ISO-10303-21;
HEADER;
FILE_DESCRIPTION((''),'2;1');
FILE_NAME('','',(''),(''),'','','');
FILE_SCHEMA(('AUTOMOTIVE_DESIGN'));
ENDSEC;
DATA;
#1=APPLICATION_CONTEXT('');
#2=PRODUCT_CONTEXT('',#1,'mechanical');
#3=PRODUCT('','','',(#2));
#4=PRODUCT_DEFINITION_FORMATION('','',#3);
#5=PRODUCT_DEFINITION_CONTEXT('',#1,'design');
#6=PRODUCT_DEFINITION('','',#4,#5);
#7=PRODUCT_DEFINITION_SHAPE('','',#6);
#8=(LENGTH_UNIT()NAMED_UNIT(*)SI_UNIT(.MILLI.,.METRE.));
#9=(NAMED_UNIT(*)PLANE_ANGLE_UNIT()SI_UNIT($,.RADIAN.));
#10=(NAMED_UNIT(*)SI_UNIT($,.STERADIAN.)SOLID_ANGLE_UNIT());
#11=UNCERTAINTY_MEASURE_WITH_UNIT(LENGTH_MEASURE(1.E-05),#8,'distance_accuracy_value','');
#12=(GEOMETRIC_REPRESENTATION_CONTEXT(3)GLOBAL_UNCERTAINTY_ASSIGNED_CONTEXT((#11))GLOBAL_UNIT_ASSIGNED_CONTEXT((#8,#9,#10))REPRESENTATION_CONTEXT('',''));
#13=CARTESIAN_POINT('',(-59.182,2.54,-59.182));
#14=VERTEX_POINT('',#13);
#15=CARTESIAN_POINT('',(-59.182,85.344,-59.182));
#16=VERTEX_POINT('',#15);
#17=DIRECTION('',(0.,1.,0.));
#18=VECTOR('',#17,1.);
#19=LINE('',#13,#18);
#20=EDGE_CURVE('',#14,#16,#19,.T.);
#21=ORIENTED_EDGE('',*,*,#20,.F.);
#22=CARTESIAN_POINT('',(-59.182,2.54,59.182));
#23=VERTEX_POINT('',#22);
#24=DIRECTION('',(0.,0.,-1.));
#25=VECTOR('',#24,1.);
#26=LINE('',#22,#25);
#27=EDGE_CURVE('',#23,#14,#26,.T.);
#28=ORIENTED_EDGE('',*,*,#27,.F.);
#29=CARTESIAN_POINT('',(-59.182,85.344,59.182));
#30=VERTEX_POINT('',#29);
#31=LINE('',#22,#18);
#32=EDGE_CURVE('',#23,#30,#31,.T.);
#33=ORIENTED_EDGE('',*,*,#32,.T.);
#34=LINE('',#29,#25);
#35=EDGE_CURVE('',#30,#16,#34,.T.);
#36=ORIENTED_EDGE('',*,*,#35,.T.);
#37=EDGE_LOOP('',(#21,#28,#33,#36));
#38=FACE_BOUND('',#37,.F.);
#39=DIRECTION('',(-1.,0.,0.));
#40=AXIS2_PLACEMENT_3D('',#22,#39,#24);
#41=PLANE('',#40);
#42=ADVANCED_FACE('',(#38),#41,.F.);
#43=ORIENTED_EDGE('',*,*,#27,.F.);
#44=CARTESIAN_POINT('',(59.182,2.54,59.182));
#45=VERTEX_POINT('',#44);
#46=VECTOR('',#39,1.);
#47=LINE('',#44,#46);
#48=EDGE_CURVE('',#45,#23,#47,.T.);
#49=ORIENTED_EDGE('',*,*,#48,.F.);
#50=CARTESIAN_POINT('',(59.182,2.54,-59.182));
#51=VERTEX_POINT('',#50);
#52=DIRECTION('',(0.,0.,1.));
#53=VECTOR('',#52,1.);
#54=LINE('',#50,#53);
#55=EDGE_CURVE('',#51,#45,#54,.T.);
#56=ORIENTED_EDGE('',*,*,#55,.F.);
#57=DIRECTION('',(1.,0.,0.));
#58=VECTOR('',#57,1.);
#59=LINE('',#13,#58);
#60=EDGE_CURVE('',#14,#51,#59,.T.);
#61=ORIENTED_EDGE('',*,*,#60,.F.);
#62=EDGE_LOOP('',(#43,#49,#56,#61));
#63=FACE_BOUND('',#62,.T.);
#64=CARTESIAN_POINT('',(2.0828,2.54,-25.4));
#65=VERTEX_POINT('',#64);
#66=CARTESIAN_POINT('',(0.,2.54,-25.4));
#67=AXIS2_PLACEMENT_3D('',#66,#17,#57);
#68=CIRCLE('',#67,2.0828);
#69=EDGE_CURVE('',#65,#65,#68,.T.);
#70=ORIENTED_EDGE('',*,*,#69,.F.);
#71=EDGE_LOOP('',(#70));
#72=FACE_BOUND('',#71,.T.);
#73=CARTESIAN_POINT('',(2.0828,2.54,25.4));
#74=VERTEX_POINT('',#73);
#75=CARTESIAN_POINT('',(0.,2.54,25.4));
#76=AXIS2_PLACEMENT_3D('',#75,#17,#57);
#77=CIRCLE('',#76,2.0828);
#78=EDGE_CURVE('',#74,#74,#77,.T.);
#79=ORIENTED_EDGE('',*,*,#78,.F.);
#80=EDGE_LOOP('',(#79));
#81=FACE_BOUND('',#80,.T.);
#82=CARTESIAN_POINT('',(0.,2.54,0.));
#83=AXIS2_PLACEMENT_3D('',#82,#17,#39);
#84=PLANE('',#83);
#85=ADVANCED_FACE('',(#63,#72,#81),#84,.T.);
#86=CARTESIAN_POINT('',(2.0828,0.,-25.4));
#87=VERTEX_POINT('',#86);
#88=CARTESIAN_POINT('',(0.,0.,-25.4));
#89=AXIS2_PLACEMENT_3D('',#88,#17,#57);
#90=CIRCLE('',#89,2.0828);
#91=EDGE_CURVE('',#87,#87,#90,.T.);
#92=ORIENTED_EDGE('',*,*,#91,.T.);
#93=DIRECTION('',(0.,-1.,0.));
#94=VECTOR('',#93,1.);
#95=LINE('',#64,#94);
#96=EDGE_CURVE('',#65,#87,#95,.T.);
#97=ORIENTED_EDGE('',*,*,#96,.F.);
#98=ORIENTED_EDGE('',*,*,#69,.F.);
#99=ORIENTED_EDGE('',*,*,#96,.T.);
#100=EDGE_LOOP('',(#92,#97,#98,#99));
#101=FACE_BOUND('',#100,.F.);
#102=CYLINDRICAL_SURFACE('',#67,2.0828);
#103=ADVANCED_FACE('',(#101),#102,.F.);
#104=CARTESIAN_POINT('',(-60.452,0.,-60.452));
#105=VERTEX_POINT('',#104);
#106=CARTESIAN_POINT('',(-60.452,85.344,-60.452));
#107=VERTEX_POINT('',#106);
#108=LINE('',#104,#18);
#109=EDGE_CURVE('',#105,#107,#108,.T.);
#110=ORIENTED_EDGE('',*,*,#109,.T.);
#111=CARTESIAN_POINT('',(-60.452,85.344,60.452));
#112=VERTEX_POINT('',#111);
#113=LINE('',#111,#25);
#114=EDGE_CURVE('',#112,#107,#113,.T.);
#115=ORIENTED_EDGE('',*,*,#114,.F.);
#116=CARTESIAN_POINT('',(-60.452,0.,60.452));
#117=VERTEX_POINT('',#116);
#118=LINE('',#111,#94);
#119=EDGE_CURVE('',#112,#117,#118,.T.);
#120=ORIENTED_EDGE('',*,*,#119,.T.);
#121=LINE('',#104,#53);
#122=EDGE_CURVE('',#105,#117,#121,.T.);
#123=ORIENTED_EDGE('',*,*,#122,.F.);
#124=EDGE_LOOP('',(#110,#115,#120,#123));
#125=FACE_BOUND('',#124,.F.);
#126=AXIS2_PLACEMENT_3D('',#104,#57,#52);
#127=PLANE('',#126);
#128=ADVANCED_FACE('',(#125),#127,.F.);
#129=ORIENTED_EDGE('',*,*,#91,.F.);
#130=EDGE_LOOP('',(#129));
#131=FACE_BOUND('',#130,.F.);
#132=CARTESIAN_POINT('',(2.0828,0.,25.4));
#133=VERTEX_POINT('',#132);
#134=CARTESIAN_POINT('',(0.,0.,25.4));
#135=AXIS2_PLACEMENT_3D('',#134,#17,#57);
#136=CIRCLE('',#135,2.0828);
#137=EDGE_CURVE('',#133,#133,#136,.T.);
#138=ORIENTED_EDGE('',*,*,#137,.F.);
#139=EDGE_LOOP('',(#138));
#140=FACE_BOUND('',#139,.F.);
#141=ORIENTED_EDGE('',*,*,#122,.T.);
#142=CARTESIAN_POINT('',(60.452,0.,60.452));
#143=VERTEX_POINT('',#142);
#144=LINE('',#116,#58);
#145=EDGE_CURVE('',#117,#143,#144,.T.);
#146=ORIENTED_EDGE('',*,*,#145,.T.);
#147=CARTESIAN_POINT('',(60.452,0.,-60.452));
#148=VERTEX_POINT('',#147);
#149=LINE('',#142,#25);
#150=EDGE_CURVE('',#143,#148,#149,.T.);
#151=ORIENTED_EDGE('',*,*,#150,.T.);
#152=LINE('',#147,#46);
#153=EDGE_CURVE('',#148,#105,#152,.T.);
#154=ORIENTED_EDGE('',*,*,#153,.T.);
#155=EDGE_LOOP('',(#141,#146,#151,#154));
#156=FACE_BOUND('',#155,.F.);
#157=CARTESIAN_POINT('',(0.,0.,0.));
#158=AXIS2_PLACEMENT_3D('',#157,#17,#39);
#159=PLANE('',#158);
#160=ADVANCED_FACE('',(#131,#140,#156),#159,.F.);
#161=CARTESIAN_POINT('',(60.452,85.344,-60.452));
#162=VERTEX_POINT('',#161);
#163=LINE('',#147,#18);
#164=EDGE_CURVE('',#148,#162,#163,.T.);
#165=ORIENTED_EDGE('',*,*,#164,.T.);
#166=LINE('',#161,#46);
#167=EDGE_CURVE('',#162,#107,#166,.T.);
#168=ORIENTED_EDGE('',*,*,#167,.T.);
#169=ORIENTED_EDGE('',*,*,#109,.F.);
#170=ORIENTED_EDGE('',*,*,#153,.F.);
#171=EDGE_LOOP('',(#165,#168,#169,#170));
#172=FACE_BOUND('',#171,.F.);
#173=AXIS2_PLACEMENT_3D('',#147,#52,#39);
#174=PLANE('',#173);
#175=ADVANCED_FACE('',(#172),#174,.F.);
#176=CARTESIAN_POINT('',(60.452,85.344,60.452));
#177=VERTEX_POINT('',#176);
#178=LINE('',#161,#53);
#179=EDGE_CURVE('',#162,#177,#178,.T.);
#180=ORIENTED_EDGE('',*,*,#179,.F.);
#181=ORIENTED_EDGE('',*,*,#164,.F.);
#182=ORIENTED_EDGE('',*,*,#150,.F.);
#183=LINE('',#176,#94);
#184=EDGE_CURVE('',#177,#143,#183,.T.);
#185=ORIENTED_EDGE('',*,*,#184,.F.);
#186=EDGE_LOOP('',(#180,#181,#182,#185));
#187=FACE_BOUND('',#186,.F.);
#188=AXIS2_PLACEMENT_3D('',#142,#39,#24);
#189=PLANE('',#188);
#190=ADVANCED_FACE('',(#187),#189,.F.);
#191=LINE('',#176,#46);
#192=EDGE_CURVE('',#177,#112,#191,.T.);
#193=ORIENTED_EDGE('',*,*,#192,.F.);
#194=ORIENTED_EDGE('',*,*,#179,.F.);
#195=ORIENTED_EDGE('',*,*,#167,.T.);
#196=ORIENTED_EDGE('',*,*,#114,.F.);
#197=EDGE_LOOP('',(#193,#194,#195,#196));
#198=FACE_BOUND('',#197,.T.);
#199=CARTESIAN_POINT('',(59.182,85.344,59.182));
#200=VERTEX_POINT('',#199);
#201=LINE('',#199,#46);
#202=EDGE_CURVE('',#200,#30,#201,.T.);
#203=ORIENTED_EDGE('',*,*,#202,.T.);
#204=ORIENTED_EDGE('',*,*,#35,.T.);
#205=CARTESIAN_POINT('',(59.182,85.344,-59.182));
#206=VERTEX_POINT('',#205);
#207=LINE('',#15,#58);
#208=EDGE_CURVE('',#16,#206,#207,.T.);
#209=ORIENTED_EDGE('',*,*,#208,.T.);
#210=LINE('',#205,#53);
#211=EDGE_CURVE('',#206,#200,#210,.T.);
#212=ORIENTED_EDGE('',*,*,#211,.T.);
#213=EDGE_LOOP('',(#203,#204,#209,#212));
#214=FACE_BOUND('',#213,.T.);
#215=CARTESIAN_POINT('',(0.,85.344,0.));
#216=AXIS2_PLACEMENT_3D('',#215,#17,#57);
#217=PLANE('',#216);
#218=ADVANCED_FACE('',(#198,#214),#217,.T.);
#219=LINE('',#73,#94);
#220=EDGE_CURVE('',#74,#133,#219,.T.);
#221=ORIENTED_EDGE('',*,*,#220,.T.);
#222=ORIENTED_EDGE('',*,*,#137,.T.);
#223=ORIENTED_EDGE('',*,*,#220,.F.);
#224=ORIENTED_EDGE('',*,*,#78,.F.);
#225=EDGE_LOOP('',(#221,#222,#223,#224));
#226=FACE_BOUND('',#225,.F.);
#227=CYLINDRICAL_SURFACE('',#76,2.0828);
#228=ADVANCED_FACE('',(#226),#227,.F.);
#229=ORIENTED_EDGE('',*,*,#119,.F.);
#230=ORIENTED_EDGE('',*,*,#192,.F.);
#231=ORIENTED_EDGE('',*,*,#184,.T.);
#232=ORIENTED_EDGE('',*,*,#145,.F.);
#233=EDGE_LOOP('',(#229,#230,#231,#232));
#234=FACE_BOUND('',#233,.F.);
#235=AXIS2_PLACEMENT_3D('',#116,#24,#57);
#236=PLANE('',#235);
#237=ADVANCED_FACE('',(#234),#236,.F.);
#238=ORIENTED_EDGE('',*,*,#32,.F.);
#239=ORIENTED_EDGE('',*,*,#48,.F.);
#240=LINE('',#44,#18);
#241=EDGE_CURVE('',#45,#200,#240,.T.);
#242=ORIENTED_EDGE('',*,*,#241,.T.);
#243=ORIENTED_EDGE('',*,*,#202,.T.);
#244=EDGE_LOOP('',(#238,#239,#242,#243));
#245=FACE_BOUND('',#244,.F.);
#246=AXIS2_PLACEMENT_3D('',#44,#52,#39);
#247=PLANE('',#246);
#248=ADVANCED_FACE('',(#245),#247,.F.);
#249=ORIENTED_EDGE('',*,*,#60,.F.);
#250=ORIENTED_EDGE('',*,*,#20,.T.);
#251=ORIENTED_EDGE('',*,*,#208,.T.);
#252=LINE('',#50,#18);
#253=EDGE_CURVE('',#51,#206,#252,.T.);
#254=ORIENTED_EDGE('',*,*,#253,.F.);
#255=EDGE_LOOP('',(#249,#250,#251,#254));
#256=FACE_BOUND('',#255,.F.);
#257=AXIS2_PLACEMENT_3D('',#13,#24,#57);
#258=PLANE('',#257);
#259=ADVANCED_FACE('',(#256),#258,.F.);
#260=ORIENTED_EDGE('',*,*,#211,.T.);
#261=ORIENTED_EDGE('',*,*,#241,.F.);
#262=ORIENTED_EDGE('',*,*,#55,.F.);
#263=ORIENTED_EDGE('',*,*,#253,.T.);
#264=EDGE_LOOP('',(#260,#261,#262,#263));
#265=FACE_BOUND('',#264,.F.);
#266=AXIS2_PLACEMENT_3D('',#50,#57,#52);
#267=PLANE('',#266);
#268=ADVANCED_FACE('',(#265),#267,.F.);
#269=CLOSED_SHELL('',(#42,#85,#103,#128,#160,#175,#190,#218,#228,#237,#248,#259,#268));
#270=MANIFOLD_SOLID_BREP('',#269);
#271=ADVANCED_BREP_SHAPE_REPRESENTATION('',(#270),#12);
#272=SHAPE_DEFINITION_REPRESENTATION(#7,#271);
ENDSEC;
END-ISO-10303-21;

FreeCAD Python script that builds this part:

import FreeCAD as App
import Part
import Sketcher
from FreeCAD import Vector
Q = App.Units.Quantity

doc = App.newDocument("Part")
params = doc.addObject("Spreadsheet::Sheet", "Params")
for row, (alias, value) in enumerate([
    ("sketch1_width", "4.76 in"),
    ("pad1_length", "0.1 in"),
    ("sketch2_width", "4.66 in"),
    ("sketch2_width2", "4.76 in"),
    ("pad2_length", "3.26 in"),
    ("sketch3_diameter", "0.164 in"),
], start=1):
    params.set(f"A{row}", alias)
    params.set(f"B{row}", "=" + value)
    params.setAlias(f"B{row}", alias)

body = doc.addObject("PartDesign::Body", "Body")

# Sketch on XZ plane
sketch1 = body.newObject("Sketcher::SketchObject", "Sketch")
sketch1.AttachmentSupport = (doc.getObject("XZ_Plane"), [""])
sketch1.MapMode = "FlatFace"
sketch1.addGeometry([
    Part.LineSegment(Vector(60, 60, 0), Vector(60, -60, 0)),
    Part.LineSegment(Vector(60, -60, 0), Vector(-60, -60, 0)),
    Part.LineSegment(Vector(-60, -60, 0), Vector(-60, 60, 0)),
    Part.LineSegment(Vector(-60, 60, 0), Vector(60, 60, 0)),
], False)
sketch1.addConstraint([
    Sketcher.Constraint("Coincident", 0, 2, 1, 1),
    Sketcher.Constraint("Coincident", 1, 2, 2, 1),
    Sketcher.Constraint("Coincident", 2, 2, 3, 1),
    Sketcher.Constraint("Coincident", 3, 2, 0, 1),
    Sketcher.Constraint("Vertical", 0),
    Sketcher.Constraint("Horizontal", 1),
    Sketcher.Constraint("Vertical", 2),
    Sketcher.Constraint("Horizontal", 3),
    Sketcher.Constraint("Symmetric", 0, 2, 2, 2, -1, 1),
    Sketcher.Constraint("Equal", 3, 0),
    Sketcher.Constraint("DistanceX", 1, 2, 1, 1, Q("4.76 in")),
])
sketch1.setExpression("Constraints[10]", "Params.sketch1_width")
pad1 = body.newObject("PartDesign::Pad", "Pad")
pad1.Profile = sketch1
pad1.setExpression("Length", "Params.pad1_length")
pad1.Reversed = True

# Sketch on XZ plane
sketch2 = body.newObject("Sketcher::SketchObject", "Sketch001")
sketch2.AttachmentSupport = (doc.getObject("XZ_Plane"), [""])
sketch2.MapMode = "FlatFace"
sketch2.AttachmentOffset = App.Placement(Vector(0, 0, -0.1 * 25.4), App.Rotation())
sketch2.addGeometry([
    Part.LineSegment(Vector(60, 60, 0), Vector(60, -60, 0)),  # 0
    Part.LineSegment(Vector(60, -60, 0), Vector(-60, -60, 0)),  # 1
    Part.LineSegment(Vector(-60, -60, 0), Vector(-60, 60, 0)),  # 2
    Part.LineSegment(Vector(-60, 60, 0), Vector(60, 60, 0)),  # 3
    Part.LineSegment(Vector(59, -59, 0), Vector(59, 59, 0)),  # 4
    Part.LineSegment(Vector(59, 59, 0), Vector(-59, 59, 0)),  # 5
    Part.LineSegment(Vector(-59, 59, 0), Vector(-59, -59, 0)),  # 6
    Part.LineSegment(Vector(-59, -59, 0), Vector(59, -59, 0)),  # 7
], False)
sketch2.addConstraint([
    Sketcher.Constraint("Coincident", 0, 2, 1, 1),
    Sketcher.Constraint("Coincident", 1, 2, 2, 1),
    Sketcher.Constraint("Coincident", 2, 2, 3, 1),
    Sketcher.Constraint("Coincident", 3, 2, 0, 1),
    Sketcher.Constraint("Coincident", 4, 2, 5, 1),
    Sketcher.Constraint("Coincident", 5, 2, 6, 1),
    Sketcher.Constraint("Coincident", 6, 2, 7, 1),
    Sketcher.Constraint("Coincident", 7, 2, 4, 1),
    Sketcher.Constraint("Vertical", 0),
    Sketcher.Constraint("Horizontal", 1),
    Sketcher.Constraint("Vertical", 2),
    Sketcher.Constraint("Horizontal", 3),
    Sketcher.Constraint("Vertical", 4),
    Sketcher.Constraint("Horizontal", 5),
    Sketcher.Constraint("Vertical", 6),
    Sketcher.Constraint("Horizontal", 7),
    Sketcher.Constraint("Symmetric", 0, 2, 2, 2, -1, 1),
    Sketcher.Constraint("Symmetric", 4, 2, 6, 2, -1, 1),
    Sketcher.Constraint("Equal", 3, 0),
    Sketcher.Constraint("Equal", 7, 4),
    Sketcher.Constraint("DistanceX", 5, 2, 5, 1, Q("4.66 in")),
    Sketcher.Constraint("DistanceX", 1, 2, 1, 1, Q("4.76 in")),
])
sketch2.setExpression("Constraints[20]", "Params.sketch2_width")
sketch2.setExpression("Constraints[21]", "Params.sketch2_width2")
pad2 = body.newObject("PartDesign::Pad", "Pad001")
pad2.Profile = sketch2
pad2.setExpression("Length", "Params.pad2_length")
pad2.Reversed = True

# Sketch on XZ plane
sketch3 = body.newObject("Sketcher::SketchObject", "Sketch002")
sketch3.AttachmentSupport = (doc.getObject("XZ_Plane"), [""])
sketch3.MapMode = "FlatFace"
sketch3.AttachmentOffset = App.Placement(Vector(0, 0, -0.1 * 25.4), App.Rotation())
sketch3.addGeometry([
    Part.Circle(Vector(0, 25.4, 0), Vector(0, 0, 1), 2.1),
    Part.Circle(Vector(0, -25.4, 0), Vector(0, 0, 1), 2.1),
], False)
sketch3.addConstraint([
    Sketcher.Constraint("Equal", 0, 1),
    Sketcher.Constraint("Symmetric", 0, 3, 1, 3, -1, 1),
    Sketcher.Constraint("PointOnObject", 0, 3, -2),
    Sketcher.Constraint("Diameter", 0, Q("0.164 in")),
    Sketcher.Constraint("DistanceY", -1, 1, 0, 3, Q("1 in")),
])
sketch3.setExpression("Constraints[3]", "Params.sketch3_diameter")
pocket1 = body.newObject("PartDesign::Pocket", "Pocket")
pocket1.Profile = sketch3
pocket1.Type = "ThroughAll"
pocket1.Reversed = True

doc.recompute()
